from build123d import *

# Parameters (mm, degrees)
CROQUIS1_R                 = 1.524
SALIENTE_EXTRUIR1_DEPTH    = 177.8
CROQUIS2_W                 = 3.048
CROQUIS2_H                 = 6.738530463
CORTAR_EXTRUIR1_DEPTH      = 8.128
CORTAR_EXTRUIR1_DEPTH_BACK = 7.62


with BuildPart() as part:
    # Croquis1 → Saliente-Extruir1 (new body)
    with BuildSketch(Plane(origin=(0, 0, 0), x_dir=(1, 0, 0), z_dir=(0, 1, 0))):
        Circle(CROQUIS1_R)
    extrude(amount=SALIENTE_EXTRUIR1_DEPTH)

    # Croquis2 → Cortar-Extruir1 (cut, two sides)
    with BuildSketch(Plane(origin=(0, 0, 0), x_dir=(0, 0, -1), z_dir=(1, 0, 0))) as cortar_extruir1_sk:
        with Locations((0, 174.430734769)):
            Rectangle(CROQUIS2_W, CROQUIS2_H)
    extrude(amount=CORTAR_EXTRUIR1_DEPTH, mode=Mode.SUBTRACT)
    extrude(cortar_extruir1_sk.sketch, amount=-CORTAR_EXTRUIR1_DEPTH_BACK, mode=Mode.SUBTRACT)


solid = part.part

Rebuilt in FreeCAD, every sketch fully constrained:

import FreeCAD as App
import Part
import Sketcher
from FreeCAD import Vector
Q = App.Units.Quantity


def add_polygon(sketch, points):
    """Adds a closed chain of lines whose ends are joined by coincident constraints."""
    first, n = sketch.GeometryCount, len(points)
    for a, b in zip(points, points[1:] + points[:1]):
        sketch.addGeometry(Part.LineSegment(App.Vector(*a, 0), App.Vector(*b, 0)), False)
    for i in range(n):
        sketch.addConstraint(Sketcher.Constraint("Coincident", first + i, 2, first + (i + 1) % n, 1))

doc = App.newDocument("Part")
body = doc.addObject("PartDesign::Body", "Body")

# Sketch on XZ plane
sketch1 = body.newObject("Sketcher::SketchObject", "Sketch")
sketch1.AttachmentSupport = (doc.getObject("XZ_Plane"), [""])
sketch1.MapMode = "FlatFace"
sketch1.addGeometry(Part.Circle(Vector(0, 0, 0), Vector(0, 0, 1), 1.5), False)
sketch1.addConstraint([
    Sketcher.Constraint("Coincident", 0, 3, -1, 1),
    Sketcher.Constraint("Diameter", 0, Q("0.12 in")),
])
pad1 = body.newObject("PartDesign::Pad", "Pad")
pad1.Profile = sketch1
pad1.Length = Q("7 in")
pad1.Reversed = True

# Sketch on YZ plane
sketch2 = body.newObject("Sketcher::SketchObject", "Sketch001")
sketch2.AttachmentSupport = (doc.getObject("YZ_Plane"), [""])
sketch2.MapMode = "FlatFace"
add_polygon(sketch2, [(177.8, 1.5), (171.1, 1.5), (171.1, -1.5), (177.8, -1.5)])  # lines 0-3
sketch2.addConstraint([
    Sketcher.Constraint("Horizontal", 0),
    Sketcher.Constraint("Vertical", 1),
    Sketcher.Constraint("Horizontal", 2),
    Sketcher.Constraint("Vertical", 3),
    Sketcher.Constraint("DistanceX", -1, 1, 2, 2, Q("7 in")),
    Sketcher.Constraint("DistanceY", 1, 2, 1, 1, Q("0.12 in")),
    Sketcher.Constraint("DistanceY", -1, 1, 0, 2, Q("0.06 in")),
    Sketcher.Constraint("DistanceX", 0, 2, 0, 1, 6.73853),
])
pocket1 = body.newObject("PartDesign::Pocket", "Pocket")
pocket1.Profile = sketch2
pocket1.Type = "ThroughAll"
pocket1.Midplane = True

doc.recompute()
